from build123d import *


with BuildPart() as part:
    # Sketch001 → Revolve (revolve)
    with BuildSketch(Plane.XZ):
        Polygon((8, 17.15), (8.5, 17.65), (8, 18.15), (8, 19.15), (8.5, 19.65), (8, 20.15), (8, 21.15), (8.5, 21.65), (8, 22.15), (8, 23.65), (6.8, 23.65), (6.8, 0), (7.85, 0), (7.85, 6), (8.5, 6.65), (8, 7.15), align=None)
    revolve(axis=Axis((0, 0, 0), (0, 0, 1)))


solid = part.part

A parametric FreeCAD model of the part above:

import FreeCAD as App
import Part
import Sketcher
from FreeCAD import Vector
Q = App.Units.Quantity

doc = App.newDocument("Part")
params = doc.addObject("Spreadsheet::Sheet", "Params")
for row, (alias, value) in enumerate([
    ("sketch1_height", "1 mm"),
    ("sketch1_height2", "6 mm"),
    ("sketch1_height3", "10 mm"),
    ("sketch1_width", "1.2 mm"),
    ("sketch1_height4", "1.5 mm"),
    ("revolution_angle", "360 deg"),
], start=1):
    params.set(f"A{row}", alias)
    params.set(f"B{row}", "=" + value)
    params.setAlias(f"B{row}", alias)

body = doc.addObject("PartDesign::Body", "Body")

# Sketch on XZ plane
sketch1 = body.newObject("Sketcher::SketchObject", "Sketch")
sketch1.AttachmentSupport = (doc.getObject("XZ_Plane"), [""])
sketch1.MapMode = "FlatFace"
sketch1.addGeometry([
    Part.LineSegment(Vector(8, 17.1, 0), Vector(8.5, 17.6, 0)),  # 0
    Part.LineSegment(Vector(8.5, 17.6, 0), Vector(8, 18.1, 0)),  # 1
    Part.LineSegment(Vector(8, 18.1, 0), Vector(8, 19.1, 0)),  # 2
    Part.LineSegment(Vector(8, 19.1, 0), Vector(8.5, 19.6, 0)),  # 3
    Part.LineSegment(Vector(8.5, 19.6, 0), Vector(8, 20.1, 0)),  # 4
    Part.LineSegment(Vector(8, 20.1, 0), Vector(8, 21.1, 0)),  # 5
    Part.LineSegment(Vector(8, 21.1, 0), Vector(8.5, 21.6, 0)),  # 6
    Part.LineSegment(Vector(8.5, 21.6, 0), Vector(8, 22.1, 0)),  # 7
    Part.LineSegment(Vector(8, 22.1, 0), Vector(8, 23.6, 0)),  # 8
    Part.LineSegment(Vector(8, 23.6, 0), Vector(6.8, 23.6, 0)),  # 9
    Part.LineSegment(Vector(6.8, 23.6, 0), Vector(6.8, 0, 0)),  # 10
    Part.LineSegment(Vector(6.8, 0, 0), Vector(7.8, 0, 0)),  # 11
    Part.LineSegment(Vector(7.8, 0, 0), Vector(7.8, 6, 0)),  # 12
    Part.LineSegment(Vector(7.8, 6, 0), Vector(8.5, 6.7, 0)),  # 13
    Part.LineSegment(Vector(8.5, 6.7, 0), Vector(8, 7.2, 0)),  # 14
    Part.LineSegment(Vector(8, 7.2, 0), Vector(8, 17.1, 0)),  # 15
], False)
sketch1.addConstraint([
    Sketcher.Constraint("Coincident", 0, 2, 1, 1),
    Sketcher.Constraint("Coincident", 1, 2, 2, 1),
    Sketcher.Constraint("Coincident", 2, 2, 3, 1),
    Sketcher.Constraint("Coincident", 3, 2, 4, 1),
    Sketcher.Constraint("Coincident", 4, 2, 5, 1),
    Sketcher.Constraint("Coincident", 5, 2, 6, 1),
    Sketcher.Constraint("Coincident", 6, 2, 7, 1),
    Sketcher.Constraint("Coincident", 7, 2, 8, 1),
    Sketcher.Constraint("Coincident", 8, 2, 9, 1),
    Sketcher.Constraint("Coincident", 9, 2, 10, 1),
    Sketcher.Constraint("Coincident", 10, 2, 11, 1),
    Sketcher.Constraint("Coincident", 11, 2, 12, 1),
    Sketcher.Constraint("Coincident", 12, 2, 13, 1),
    Sketcher.Constraint("Coincident", 13, 2, 14, 1),
    Sketcher.Constraint("Coincident", 14, 2, 15, 1),
    Sketcher.Constraint("Coincident", 15, 2, 0, 1),
    Sketcher.Constraint("Vertical", 2),
    Sketcher.Constraint("Vertical", 5),
    Sketcher.Constraint("Vertical", 8),
    Sketcher.Constraint("Horizontal", 9),
    Sketcher.Constraint("Vertical", 10),
    Sketcher.Constraint("Horizontal", 11),
    Sketcher.Constraint("Vertical", 12),
    Sketcher.Constraint("Vertical", 15),
    Sketcher.Constraint("PointOnObject", 10, 2, -1),
    Sketcher.Constraint("Perpendicular", 0, 1),
    Sketcher.Constraint("Perpendicular", 1, 3),
    Sketcher.Constraint("Perpendicular", 3, 4),
    Sketcher.Constraint("Perpendicular", 4, 6),
    Sketcher.Constraint("Perpendicular", 6, 7),
    Sketcher.Constraint("Perpendicular", 7, 13),
    Sketcher.Constraint("Perpendicular", 13, 14),
    Sketcher.Constraint("Vertical", 0, 2, 3, 2),
    Sketcher.Constraint("Vertical", 2, 2, 4, 2),
    Sketcher.Constraint("Vertical", 3, 2, 6, 2),
    Sketcher.Constraint("Vertical", 5, 2, 7, 2),
    Sketcher.Constraint("Vertical", 6, 2, 13, 2),
    Sketcher.Constraint("Vertical", 8, 2, 14, 2),
    Sketcher.Constraint("Equal", 2, 5),
    Sketcher.Constraint("Equal", 0, 1),
    Sketcher.Constraint("DistanceY", 2, 1, 2, 2, Q("1 mm")),
    Sketcher.Constraint("DistanceY", 12, 1, 12, 2, Q("6 mm")),
    Sketcher.Constraint("DistanceY", 15, 1, 15, 2, Q("10 mm")),
    Sketcher.Constraint("DistanceX", 9, 2, 9, 1, Q("1.2 mm")),
    Sketcher.Constraint("DistanceY", 8, 1, 8, 2, Q("1.5 mm")),
    Sketcher.Constraint("DistanceX", -1, 1, 1, 2, Q("8 mm")),
    Sketcher.Constraint("DistanceY", 0, 2, 3, 2, Q("2 mm")),
    Sketcher.Constraint("DistanceX", 11, 1, 11, 2, Q("1.05 mm")),
])
sketch1.setExpression("Constraints[40]", "Params.sketch1_height")
sketch1.setExpression("Constraints[41]", "Params.sketch1_height2")
sketch1.setExpression("Constraints[42]", "Params.sketch1_height3")
sketch1.setExpression("Constraints[43]", "Params.sketch1_width")
sketch1.setExpression("Constraints[44]", "Params.sketch1_height4")
revolution = body.newObject("PartDesign::Revolution", "Revolution")
revolution.Profile = sketch1
revolution.ReferenceAxis = (sketch1, ["V_Axis"])
revolution.setExpression("Angle", "Params.revolution_angle")

doc.recompute()
